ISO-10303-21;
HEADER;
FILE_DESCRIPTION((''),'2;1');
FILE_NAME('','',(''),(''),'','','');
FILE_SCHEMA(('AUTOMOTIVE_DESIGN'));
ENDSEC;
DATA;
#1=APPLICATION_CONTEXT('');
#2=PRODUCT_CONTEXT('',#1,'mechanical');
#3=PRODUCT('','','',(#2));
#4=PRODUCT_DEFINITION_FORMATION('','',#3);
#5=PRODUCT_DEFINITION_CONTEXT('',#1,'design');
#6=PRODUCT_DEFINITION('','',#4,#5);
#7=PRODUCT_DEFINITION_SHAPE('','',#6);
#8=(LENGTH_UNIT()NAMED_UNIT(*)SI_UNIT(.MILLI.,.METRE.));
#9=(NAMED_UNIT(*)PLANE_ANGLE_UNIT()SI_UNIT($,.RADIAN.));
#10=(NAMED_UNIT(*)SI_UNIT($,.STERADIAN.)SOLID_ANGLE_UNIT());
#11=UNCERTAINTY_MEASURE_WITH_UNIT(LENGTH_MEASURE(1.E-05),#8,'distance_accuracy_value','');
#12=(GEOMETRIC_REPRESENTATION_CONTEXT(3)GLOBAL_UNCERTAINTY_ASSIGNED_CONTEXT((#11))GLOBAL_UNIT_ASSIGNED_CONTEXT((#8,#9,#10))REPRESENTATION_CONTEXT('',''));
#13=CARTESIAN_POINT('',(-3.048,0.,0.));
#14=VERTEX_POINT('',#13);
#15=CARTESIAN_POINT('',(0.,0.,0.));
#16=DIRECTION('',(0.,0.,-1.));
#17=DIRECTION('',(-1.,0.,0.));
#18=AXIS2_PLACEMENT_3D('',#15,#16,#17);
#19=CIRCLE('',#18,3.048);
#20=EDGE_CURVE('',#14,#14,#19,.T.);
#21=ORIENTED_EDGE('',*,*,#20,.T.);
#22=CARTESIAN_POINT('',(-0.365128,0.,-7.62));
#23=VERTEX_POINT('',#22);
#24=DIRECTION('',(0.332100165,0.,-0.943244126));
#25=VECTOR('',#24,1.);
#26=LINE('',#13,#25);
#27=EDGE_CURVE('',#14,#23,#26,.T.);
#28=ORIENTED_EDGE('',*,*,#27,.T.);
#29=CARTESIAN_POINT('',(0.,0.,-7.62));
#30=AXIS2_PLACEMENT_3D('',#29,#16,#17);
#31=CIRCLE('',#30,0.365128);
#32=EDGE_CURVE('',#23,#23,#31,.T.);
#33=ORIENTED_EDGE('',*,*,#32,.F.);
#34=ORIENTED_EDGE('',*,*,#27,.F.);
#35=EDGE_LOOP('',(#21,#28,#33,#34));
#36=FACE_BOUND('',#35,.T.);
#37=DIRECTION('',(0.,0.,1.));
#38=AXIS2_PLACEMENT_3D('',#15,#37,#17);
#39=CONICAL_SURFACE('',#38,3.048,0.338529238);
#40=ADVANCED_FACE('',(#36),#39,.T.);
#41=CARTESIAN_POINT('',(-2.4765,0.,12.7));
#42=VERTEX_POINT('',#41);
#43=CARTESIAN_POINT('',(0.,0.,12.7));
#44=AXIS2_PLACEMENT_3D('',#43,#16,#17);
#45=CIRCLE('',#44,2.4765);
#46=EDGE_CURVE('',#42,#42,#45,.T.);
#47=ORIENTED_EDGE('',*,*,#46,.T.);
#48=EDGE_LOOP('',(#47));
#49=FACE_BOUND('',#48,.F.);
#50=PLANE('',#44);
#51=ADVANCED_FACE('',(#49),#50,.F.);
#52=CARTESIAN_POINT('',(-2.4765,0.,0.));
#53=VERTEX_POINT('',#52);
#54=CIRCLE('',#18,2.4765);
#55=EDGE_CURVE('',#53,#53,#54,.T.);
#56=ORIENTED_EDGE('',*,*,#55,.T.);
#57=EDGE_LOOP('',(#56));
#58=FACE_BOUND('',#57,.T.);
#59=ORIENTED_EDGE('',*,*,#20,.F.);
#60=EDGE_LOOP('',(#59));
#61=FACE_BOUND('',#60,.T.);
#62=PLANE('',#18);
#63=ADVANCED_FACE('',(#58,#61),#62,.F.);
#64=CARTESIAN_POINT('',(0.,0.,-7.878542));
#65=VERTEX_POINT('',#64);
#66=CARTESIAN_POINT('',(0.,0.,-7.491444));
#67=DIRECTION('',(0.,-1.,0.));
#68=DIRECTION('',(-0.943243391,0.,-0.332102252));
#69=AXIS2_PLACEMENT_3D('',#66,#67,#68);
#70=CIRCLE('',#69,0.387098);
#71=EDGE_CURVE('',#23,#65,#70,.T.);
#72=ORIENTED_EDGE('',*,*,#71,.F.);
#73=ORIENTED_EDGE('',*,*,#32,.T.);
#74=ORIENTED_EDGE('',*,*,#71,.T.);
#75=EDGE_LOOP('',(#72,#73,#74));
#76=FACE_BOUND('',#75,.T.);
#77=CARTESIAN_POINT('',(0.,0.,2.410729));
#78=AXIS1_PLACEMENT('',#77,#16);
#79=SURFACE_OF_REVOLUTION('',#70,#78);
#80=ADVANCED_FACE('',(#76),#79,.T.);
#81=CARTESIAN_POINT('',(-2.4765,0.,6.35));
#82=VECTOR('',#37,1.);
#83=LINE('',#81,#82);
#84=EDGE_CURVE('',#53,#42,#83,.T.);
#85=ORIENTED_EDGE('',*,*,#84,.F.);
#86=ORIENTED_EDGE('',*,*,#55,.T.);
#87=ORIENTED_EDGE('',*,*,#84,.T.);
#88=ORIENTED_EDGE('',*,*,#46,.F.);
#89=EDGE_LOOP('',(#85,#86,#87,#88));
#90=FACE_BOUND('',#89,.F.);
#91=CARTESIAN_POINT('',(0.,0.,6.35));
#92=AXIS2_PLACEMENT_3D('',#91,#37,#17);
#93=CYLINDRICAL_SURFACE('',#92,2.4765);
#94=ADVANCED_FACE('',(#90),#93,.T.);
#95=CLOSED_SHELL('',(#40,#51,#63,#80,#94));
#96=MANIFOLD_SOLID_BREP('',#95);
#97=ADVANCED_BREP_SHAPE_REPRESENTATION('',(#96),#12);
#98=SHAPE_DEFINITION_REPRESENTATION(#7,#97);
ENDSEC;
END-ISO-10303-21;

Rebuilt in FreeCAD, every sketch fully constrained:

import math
import FreeCAD as App
import Part
import Sketcher
Q = App.Units.Quantity

doc = App.newDocument("Part")
body = doc.addObject("PartDesign::Body", "Body")

# Sketch on XZ plane
sketch1 = body.newObject("Sketcher::SketchObject", "Sketch")
sketch1.AttachmentSupport = (doc.getObject("XZ_Plane"), [""])
sketch1.MapMode = "FlatFace"
sketch1.addGeometry([
    Part.LineSegment(App.Vector(-2.48, 12.7, 0), App.Vector(-2.48, 0, 0)),  # 0
    Part.LineSegment(App.Vector(-2.48, 0, 0), App.Vector(-3.05, 0, 0)),  # 1
    Part.LineSegment(App.Vector(-3.05, 0, 0), App.Vector(-0.37, -7.62, 0)),  # 2
    Part.ArcOfCircle(Part.Circle(App.Vector(0, -7.49, 0), App.Vector(0, 0, 1), 0.39), math.radians(-161), math.radians(-90)),  # 3
    Part.LineSegment(App.Vector(0, -7.88, 0), App.Vector(0, 12.7, 0)),  # 4
    Part.LineSegment(App.Vector(0, 12.7, 0), App.Vector(-2.48, 12.7, 0)),  # 5
], False)
sketch1.addConstraint([
    Sketcher.Constraint("Coincident", 0, 2, 1, 1),
    Sketcher.Constraint("Coincident", 1, 2, 2, 1),
    Sketcher.Constraint("Coincident", 2, 2, 3, 1),
    Sketcher.Constraint("Coincident", 3, 2, 4, 1),
    Sketcher.Constraint("Coincident", 4, 2, 5, 1),
    Sketcher.Constraint("Coincident", 5, 2, 0, 1),
    Sketcher.Constraint("Vertical", 0),
    Sketcher.Constraint("Horizontal", 1),
    Sketcher.Constraint("Vertical", 4),
    Sketcher.Constraint("Horizontal", 5),
    Sketcher.Constraint("PointOnObject", 3, 3, -2),
    Sketcher.Constraint("PointOnObject", 0, 2, -1),
    Sketcher.Constraint("PointOnObject", 3, 2, -2),
    Sketcher.Constraint("DistanceY", 0, 2, 0, 1, Q("0.5 in")),
    Sketcher.Constraint("DistanceY", 2, 2, -1, 1, Q("0.3 in")),
    Sketcher.Constraint("DistanceX", 1, 2, -1, 1, Q("0.12 in")),
    Sketcher.Constraint("Radius", 3, Q("0.387098 mm")),
    Sketcher.Constraint("DistanceX", 1, 2, 1, 1, Q("0.0225 in")),
    Sketcher.Constraint("DistanceY", 4, 1, 4, 2, Q("20.578542 mm")),
])
revolution = body.newObject("PartDesign::Revolution", "Revolution")
revolution.Profile = sketch1
revolution.ReferenceAxis = (sketch1, ["V_Axis"])
revolution.Angle = 360

doc.recompute()
